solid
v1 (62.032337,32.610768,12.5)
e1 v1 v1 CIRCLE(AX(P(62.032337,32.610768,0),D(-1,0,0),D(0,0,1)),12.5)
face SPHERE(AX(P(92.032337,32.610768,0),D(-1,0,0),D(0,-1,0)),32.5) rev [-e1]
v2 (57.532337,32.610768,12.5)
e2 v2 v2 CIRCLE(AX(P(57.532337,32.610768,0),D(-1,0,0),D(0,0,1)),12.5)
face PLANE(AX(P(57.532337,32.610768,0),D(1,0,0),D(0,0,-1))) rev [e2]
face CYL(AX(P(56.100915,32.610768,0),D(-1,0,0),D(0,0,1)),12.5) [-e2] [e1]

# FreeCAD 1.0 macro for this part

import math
import FreeCAD as App
import Part
import Sketcher
from FreeCAD import Vector
Q = App.Units.Quantity

doc = App.newDocument("Part")
body = doc.addObject("PartDesign::Body", "Body")

sketch1 = body.newObject("Sketcher::SketchObject", "Sketch")
sketch1.AttachmentSupport = (doc.getObject("XY_Plane"), [""])
sketch1.MapMode = "FlatFace"
sketch1.addGeometry([
    Part.LineSegment(Vector(57.532337, 45.110768, 0), Vector(57.532337, 32.610768, 0)),
    Part.LineSegment(Vector(57.532337, 32.610768, 0), Vector(59.532337, 32.610768, 0)),
    Part.ArcOfCircle(Part.Circle(Vector(92.032337, 32.610768, 0), Vector(0, 0, 1), 32.5), math.radians(157.380135), math.radians(180)),
    Part.LineSegment(Vector(62.032337, 45.110768, 0), Vector(57.532337, 45.110768, 0)),
], False)
sketch1.addGeometry(Part.LineSegment(Vector(57.532337, 32.610768, 0), Vector(92.032337, 32.610768, 0)), True)
sketch1.addConstraint([
    Sketcher.Constraint("Coincident", 0, 2, 1, 1),
    Sketcher.Constraint("Coincident", 1, 2, 2, 2),
    Sketcher.Constraint("Coincident", 2, 1, 3, 1),
    Sketcher.Constraint("Coincident", 3, 2, 0, 1),
    Sketcher.Constraint("Vertical", 0),
    Sketcher.Constraint("Horizontal", 1),
    Sketcher.Constraint("Horizontal", 3),
    Sketcher.Constraint("Horizontal", 4),
    Sketcher.Constraint("Coincident", 4, 1, 0, 2),
    Sketcher.Constraint("Coincident", 4, 2, 2, 3),
    Sketcher.Constraint("Radius", 2, Q("32.5 mm")),
    Sketcher.Constraint("DistanceX", 1, 1, 1, 2, Q("2 mm")),
    Sketcher.Constraint("DistanceX", 3, 2, 3, 1, Q("4.5 mm")),
    Sketcher.Constraint("DistanceY", -1, 1, 2, 3, Q("32.610768 mm")),
    Sketcher.Constraint("DistanceX", -1, 1, 2, 3, Q("92.032337 mm")),
])
revolution = body.newObject("PartDesign::Revolution", "Revolution")
revolution.Profile = sketch1
revolution.ReferenceAxis = (sketch1, ["Axis0"])
revolution.Angle = 360

doc.recompute()
